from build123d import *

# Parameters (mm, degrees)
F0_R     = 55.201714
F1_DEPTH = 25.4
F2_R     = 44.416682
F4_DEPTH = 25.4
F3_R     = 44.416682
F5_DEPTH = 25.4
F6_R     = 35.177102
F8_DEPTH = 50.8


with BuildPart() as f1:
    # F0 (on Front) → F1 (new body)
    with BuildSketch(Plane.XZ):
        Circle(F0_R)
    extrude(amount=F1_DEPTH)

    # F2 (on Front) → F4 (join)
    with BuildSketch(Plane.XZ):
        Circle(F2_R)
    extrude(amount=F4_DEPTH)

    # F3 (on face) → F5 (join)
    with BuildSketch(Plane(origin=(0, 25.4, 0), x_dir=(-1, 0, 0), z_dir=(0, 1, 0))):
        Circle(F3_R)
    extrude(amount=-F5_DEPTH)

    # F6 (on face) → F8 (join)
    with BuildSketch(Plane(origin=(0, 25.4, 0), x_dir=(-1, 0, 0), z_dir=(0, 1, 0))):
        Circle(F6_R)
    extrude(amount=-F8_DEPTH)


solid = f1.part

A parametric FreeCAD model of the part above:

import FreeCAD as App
import Part
import Sketcher

V = App.Vector
Q = App.Units.Quantity

doc = App.newDocument("Part")
body = doc.addObject("PartDesign::Body", "Body")

# Sketch on XZ plane
sketch1 = body.newObject("Sketcher::SketchObject", "Sketch")
sketch1.AttachmentSupport = (doc.getObject("XZ_Plane"), [""])
sketch1.MapMode = "FlatFace"
sketch1.addGeometry(Part.Circle(V(0, 0, 0), V(0, 0, 1), 55), False)
sketch1.addConstraint(Sketcher.Constraint("Coincident", 0, 3, -1, 1))
sketch1.addConstraint(Sketcher.Constraint("Diameter", 0, 110.403428))
pad1 = body.newObject("PartDesign::Pad", "Pad")
pad1.Profile = sketch1
pad1.Length = Q("1 in")

# Sketch on XZ plane
sketch2 = body.newObject("Sketcher::SketchObject", "Sketch001")
sketch2.AttachmentSupport = (doc.getObject("XZ_Plane"), [""])
sketch2.MapMode = "FlatFace"
sketch2.addGeometry(Part.Circle(V(0, 0, 0), V(0, 0, 1), 44), False)
sketch2.addConstraint(Sketcher.Constraint("Coincident", 0, 3, -1, 1))
sketch2.addConstraint(Sketcher.Constraint("Diameter", 0, 88.833364))
pad2 = body.newObject("PartDesign::Pad", "Pad001")
pad2.Profile = sketch2
pad2.Length = Q("1 in")

# Sketch on XZ plane
sketch3 = body.newObject("Sketcher::SketchObject", "Sketch002")
sketch3.AttachmentSupport = (doc.getObject("XZ_Plane"), [""])
sketch3.MapMode = "FlatFace"
sketch3.AttachmentOffset = App.Placement(V(0, 0, -1 * 25.4), App.Rotation())
sketch3.addGeometry(Part.Circle(V(0, 0, 0), V(0, 0, 1), 44), False)
sketch3.addConstraint(Sketcher.Constraint("Coincident", 0, 3, -1, 1))
sketch3.addConstraint(Sketcher.Constraint("Diameter", 0, 88.833364))
pad3 = body.newObject("PartDesign::Pad", "Pad002")
pad3.Profile = sketch3
pad3.Length = Q("1 in")

# Sketch on XZ plane
sketch4 = body.newObject("Sketcher::SketchObject", "Sketch003")
sketch4.AttachmentSupport = (doc.getObject("XZ_Plane"), [""])
sketch4.MapMode = "FlatFace"
sketch4.AttachmentOffset = App.Placement(V(0, 0, -1 * 25.4), App.Rotation())
sketch4.addGeometry(Part.Circle(V(0, 0, 0), V(0, 0, 1), 35), False)
sketch4.addConstraint(Sketcher.Constraint("Coincident", 0, 3, -1, 1))
sketch4.addConstraint(Sketcher.Constraint("Diameter", 0, 70.354204))
pad4 = body.newObject("PartDesign::Pad", "Pad003")
pad4.Profile = sketch4
pad4.Length = Q("2 in")

doc.recompute()
